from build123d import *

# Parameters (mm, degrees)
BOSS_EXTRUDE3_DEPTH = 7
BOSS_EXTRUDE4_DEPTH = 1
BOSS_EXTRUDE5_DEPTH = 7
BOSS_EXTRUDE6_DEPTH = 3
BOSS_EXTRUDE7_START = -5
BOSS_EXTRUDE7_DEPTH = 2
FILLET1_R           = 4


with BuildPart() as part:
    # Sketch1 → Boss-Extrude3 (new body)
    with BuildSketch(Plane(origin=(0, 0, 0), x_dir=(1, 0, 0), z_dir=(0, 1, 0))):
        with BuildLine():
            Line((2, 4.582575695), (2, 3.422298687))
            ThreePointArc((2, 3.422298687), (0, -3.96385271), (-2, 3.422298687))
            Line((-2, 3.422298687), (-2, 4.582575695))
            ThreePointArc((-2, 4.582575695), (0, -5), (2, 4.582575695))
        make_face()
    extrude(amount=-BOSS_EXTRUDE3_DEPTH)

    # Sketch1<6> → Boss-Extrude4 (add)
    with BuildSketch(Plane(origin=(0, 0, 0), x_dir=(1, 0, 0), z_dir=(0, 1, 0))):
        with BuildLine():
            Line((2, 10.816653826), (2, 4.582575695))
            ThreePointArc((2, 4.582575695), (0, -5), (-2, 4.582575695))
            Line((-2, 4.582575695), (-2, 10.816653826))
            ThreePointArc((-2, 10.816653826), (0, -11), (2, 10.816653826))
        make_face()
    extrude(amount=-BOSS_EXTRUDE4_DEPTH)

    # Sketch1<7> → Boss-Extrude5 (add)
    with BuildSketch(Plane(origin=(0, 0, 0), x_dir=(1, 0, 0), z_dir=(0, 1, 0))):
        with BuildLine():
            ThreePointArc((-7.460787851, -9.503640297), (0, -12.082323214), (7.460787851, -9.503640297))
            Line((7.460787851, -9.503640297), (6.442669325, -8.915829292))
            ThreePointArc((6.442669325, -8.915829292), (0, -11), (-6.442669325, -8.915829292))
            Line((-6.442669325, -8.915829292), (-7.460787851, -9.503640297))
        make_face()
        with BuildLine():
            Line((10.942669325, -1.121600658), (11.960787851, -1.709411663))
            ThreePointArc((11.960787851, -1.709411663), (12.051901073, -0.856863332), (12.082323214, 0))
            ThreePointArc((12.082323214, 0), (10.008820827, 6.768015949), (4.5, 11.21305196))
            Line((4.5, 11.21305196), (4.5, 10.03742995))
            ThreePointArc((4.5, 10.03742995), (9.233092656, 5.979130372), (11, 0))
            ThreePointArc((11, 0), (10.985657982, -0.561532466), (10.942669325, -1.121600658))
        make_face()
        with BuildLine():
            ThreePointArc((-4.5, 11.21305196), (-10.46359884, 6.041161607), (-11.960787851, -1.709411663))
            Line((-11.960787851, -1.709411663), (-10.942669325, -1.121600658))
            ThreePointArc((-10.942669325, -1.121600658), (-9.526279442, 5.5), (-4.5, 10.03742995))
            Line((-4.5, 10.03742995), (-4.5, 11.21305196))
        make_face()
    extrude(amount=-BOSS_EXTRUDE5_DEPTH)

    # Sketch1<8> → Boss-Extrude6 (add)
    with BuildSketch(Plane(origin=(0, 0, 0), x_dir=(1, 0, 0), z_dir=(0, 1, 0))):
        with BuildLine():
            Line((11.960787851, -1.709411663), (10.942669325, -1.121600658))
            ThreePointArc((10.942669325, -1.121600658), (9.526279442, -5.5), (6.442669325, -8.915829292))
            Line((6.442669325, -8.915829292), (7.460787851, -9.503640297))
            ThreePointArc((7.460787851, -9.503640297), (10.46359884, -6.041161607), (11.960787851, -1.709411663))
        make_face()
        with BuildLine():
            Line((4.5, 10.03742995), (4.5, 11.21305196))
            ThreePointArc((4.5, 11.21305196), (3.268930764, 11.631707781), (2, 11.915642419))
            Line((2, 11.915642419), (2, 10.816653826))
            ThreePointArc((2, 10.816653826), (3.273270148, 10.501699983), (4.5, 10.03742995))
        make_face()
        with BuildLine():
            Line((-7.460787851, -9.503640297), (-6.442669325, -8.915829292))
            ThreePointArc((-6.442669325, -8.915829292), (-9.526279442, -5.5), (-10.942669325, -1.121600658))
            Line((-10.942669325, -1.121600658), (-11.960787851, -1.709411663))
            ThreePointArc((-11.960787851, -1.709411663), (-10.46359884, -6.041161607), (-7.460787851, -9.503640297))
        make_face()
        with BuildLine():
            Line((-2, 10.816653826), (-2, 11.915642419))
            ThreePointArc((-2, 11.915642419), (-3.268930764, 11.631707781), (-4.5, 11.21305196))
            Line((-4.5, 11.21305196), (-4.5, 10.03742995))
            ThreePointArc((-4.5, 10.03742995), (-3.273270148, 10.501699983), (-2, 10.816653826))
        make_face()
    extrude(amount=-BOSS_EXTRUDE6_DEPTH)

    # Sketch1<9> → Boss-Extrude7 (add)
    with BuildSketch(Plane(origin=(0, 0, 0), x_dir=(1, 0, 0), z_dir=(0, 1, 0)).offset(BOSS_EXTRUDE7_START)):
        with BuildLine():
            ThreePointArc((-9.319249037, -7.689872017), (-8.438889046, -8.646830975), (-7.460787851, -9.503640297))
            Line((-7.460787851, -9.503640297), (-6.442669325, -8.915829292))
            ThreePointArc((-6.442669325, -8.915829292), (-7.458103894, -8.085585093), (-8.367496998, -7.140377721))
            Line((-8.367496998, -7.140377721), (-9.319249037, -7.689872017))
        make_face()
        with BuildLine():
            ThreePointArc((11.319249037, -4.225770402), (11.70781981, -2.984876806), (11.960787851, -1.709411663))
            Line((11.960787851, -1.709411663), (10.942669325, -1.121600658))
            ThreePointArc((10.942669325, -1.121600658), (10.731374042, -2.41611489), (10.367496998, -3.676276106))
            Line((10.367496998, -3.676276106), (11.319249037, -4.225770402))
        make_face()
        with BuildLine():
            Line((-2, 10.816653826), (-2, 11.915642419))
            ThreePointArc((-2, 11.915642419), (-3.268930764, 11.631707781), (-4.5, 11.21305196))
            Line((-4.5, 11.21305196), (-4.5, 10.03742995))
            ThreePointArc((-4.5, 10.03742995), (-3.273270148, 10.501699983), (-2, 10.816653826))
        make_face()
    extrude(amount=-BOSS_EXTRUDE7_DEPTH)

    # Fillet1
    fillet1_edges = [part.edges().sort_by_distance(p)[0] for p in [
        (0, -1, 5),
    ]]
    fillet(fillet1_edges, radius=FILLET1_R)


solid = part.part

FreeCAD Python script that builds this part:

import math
import FreeCAD as App
import Part
import Sketcher
from FreeCAD import Vector
Q = App.Units.Quantity


def edges_at(feature, points):
    """Names of the edges that pass closest to the given points."""
    edges = feature.Shape.Edges
    near = lambda p: min(range(len(edges)), key=lambda i: edges[i].distToShape(Part.Vertex(*p))[0])
    return sorted({f"Edge{near(p) + 1}" for p in points})

doc = App.newDocument("Part")
body = doc.addObject("PartDesign::Body", "Body")

# Sketch on XZ plane
sketch1 = doc.addObject("Sketcher::SketchObject", "Sketch")
body.addObject(sketch1)
sketch1.AttachmentSupport = (doc.XZ_Plane, [""])
sketch1.MapMode = "FlatFace"
sketch1.addGeometry(Part.LineSegment(Vector(2, -4.6, 0), Vector(2, -3.4, 0)), False)
sketch1.addGeometry(Part.ArcOfCircle(Part.Circle(Vector(0, 0, 0), Vector(0, 0, 1), 4), math.radians(-60), math.radians(240)), False)
sketch1.addGeometry(Part.LineSegment(Vector(-2, -3.4, 0), Vector(-2, -4.6, 0)), False)
sketch1.addGeometry(Part.ArcOfCircle(Part.Circle(Vector(0, 0, 0), Vector(0, 0, 1), 5), math.radians(-66), math.radians(246)), False)
sketch1.addConstraint(Sketcher.Constraint("Coincident", 0, 2, 1, 1))
sketch1.addConstraint(Sketcher.Constraint("Coincident", 1, 2, 2, 1))
sketch1.addConstraint(Sketcher.Constraint("Coincident", 2, 2, 3, 2))
sketch1.addConstraint(Sketcher.Constraint("Coincident", 3, 1, 0, 1))
sketch1.addConstraint(Sketcher.Constraint("Vertical", 0))
sketch1.addConstraint(Sketcher.Constraint("Vertical", 2))
sketch1.addConstraint(Sketcher.Constraint("Coincident", 1, 3, -1, 1))
sketch1.addConstraint(Sketcher.Constraint("Coincident", 3, 3, -1, 1))
sketch1.addConstraint(Sketcher.Constraint("Horizontal", 0, 2, 1, 2))
sketch1.addConstraint(Sketcher.Constraint("Radius", 3, 5.0))
sketch1.addConstraint(Sketcher.Constraint("DistanceX", -1, 1, 0, 2, 2.0))
sketch1.addConstraint(Sketcher.Constraint("Radius", 1, 3.963853))
pad1 = doc.addObject("PartDesign::Pad", "Pad")
body.addObject(pad1)
pad1.Profile = sketch1
pad1.Length = 7

# Sketch on XZ plane
sketch2 = doc.addObject("Sketcher::SketchObject", "Sketch001")
body.addObject(sketch2)
sketch2.AttachmentSupport = (doc.XZ_Plane, [""])
sketch2.MapMode = "FlatFace"
sketch2.addGeometry(Part.LineSegment(Vector(2, -10.8, 0), Vector(2, -4.6, 0)), False)
sketch2.addGeometry(Part.ArcOfCircle(Part.Circle(Vector(0, 0, 0), Vector(0, 0, 1), 5), math.radians(-66), math.radians(246)), False)
sketch2.addGeometry(Part.LineSegment(Vector(-2, -4.6, 0), Vector(-2, -10.8, 0)), False)
sketch2.addGeometry(Part.ArcOfCircle(Part.Circle(Vector(0, 0, 0), Vector(0, 0, 1), 11), math.radians(-80), math.radians(260)), False)
sketch2.addConstraint(Sketcher.Constraint("Coincident", 0, 2, 1, 1))
sketch2.addConstraint(Sketcher.Constraint("Coincident", 1, 2, 2, 1))
sketch2.addConstraint(Sketcher.Constraint("Coincident", 2, 2, 3, 2))
sketch2.addConstraint(Sketcher.Constraint("Coincident", 3, 1, 0, 1))
sketch2.addConstraint(Sketcher.Constraint("Vertical", 0))
sketch2.addConstraint(Sketcher.Constraint("Vertical", 2))
sketch2.addConstraint(Sketcher.Constraint("Coincident", 1, 3, -1, 1))
sketch2.addConstraint(Sketcher.Constraint("Coincident", 3, 3, -1, 1))
sketch2.addConstraint(Sketcher.Constraint("Horizontal", 0, 2, 1, 2))
sketch2.addConstraint(Sketcher.Constraint("Radius", 1, 5.0))
sketch2.addConstraint(Sketcher.Constraint("Radius", 3, 11.0))
sketch2.addConstraint(Sketcher.Constraint("DistanceX", -1, 1, 0, 2, 2.0))
pad2 = doc.addObject("PartDesign::Pad", "Pad001")
body.addObject(pad2)
pad2.Profile = sketch2
pad2.Length = 1

# Sketch on XZ plane
sketch3 = doc.addObject("Sketcher::SketchObject", "Sketch002")
body.addObject(sketch3)
sketch3.AttachmentSupport = (doc.XZ_Plane, [""])
sketch3.MapMode = "FlatFace"
sketch3.addGeometry(Part.ArcOfCircle(Part.Circle(Vector(0, 0, 0), Vector(0, 0, 1), 12.1), math.radians(52), math.radians(128)), False)
sketch3.addGeometry(Part.LineSegment(Vector(7.5, 9.5, 0), Vector(6.4, 8.9, 0)), False)
sketch3.addGeometry(Part.ArcOfCircle(Part.Circle(Vector(0, 0, 0), Vector(0, 0, 1), 11), math.radians(54), math.radians(126)), False)
sketch3.addGeometry(Part.LineSegment(Vector(-6.4, 8.9, 0), Vector(-7.5, 9.5, 0)), False)
sketch3.addGeometry(Part.LineSegment(Vector(10.9, 1.1, 0), Vector(12, 1.7, 0)), False)
sketch3.addGeometry(Part.ArcOfCircle(Part.Circle(Vector(0, 0, 0), Vector(0, 0, 1), 12.1), math.radians(0), math.radians(8.13)), False)
sketch3.addGeometry(Part.ArcOfCircle(Part.Circle(Vector(0, 0, 0), Vector(0, 0, 1), 12.1), math.radians(-68), math.radians(0)), False)
sketch3.addGeometry(Part.LineSegment(Vector(4.5, -11.2, 0), Vector(4.5, -10, 0)), False)
sketch3.addGeometry(Part.ArcOfCircle(Part.Circle(Vector(0, 0, 0), Vector(0, 0, 1), 11), math.radians(-66), math.radians(0)), False)
sketch3.addGeometry(Part.ArcOfCircle(Part.Circle(Vector(0, 0, 0), Vector(0, 0, 1), 11), math.radians(0), math.radians(5.85)), False)
sketch3.addGeometry(Part.ArcOfCircle(Part.Circle(Vector(0, 0, 0), Vector(0, 0, 1), 12.1), math.radians(172), math.radians(248)), False)
sketch3.addGeometry(Part.LineSegment(Vector(-12, 1.7, 0), Vector(-10.9, 1.1, 0)), False)
sketch3.addGeometry(Part.ArcOfCircle(Part.Circle(Vector(0, 0, 0), Vector(0, 0, 1), 11), math.radians(174), math.radians(246)), False)
sketch3.addGeometry(Part.LineSegment(Vector(-4.5, -10, 0), Vector(-4.5, -11.2, 0)), False)
sketch3.addConstraint(Sketcher.Constraint("Coincident", 0, 1, 1, 1))
sketch3.addConstraint(Sketcher.Constraint("Coincident", 1, 2, 2, 1))
sketch3.addConstraint(Sketcher.Constraint("Coincident", 2, 2, 3, 1))
sketch3.addConstraint(Sketcher.Constraint("Coincident", 3, 2, 0, 2))
sketch3.addConstraint(Sketcher.Constraint("Coincident", 4, 2, 5, 2))
sketch3.addConstraint(Sketcher.Constraint("Tangent", 5, 1, 6, 2))
sketch3.addConstraint(Sketcher.Constraint("Coincident", 6, 1, 7, 1))
sketch3.addConstraint(Sketcher.Constraint("Coincident", 7, 2, 8, 1))
sketch3.addConstraint(Sketcher.Constraint("Tangent", 8, 2, 9, 1))
sketch3.addConstraint(Sketcher.Constraint("Coincident", 9, 2, 4, 1))
sketch3.addConstraint(Sketcher.Constraint("Coincident", 10, 1, 11, 1))
sketch3.addConstraint(Sketcher.Constraint("Coincident", 11, 2, 12, 1))
sketch3.addConstraint(Sketcher.Constraint("Coincident", 12, 2, 13, 1))
sketch3.addConstraint(Sketcher.Constraint("Coincident", 13, 2, 10, 2))
sketch3.addConstraint(Sketcher.Constraint("Vertical", 7))
sketch3.addConstraint(Sketcher.Constraint("Vertical", 13))
sketch3.addConstraint(Sketcher.Constraint("Coincident", 0, 3, -1, 1))
sketch3.addConstraint(Sketcher.Constraint("Coincident", 2, 3, -1, 1))
sketch3.addConstraint(Sketcher.Constraint("Coincident", 5, 3, -1, 1))
sketch3.addConstraint(Sketcher.Constraint("Coincident", 8, 3, -1, 1))
sketch3.addConstraint(Sketcher.Constraint("Coincident", 10, 3, -1, 1))
sketch3.addConstraint(Sketcher.Constraint("Coincident", 12, 3, -1, 1))
sketch3.addConstraint(Sketcher.Constraint("Equal", 0, 5))
sketch3.addConstraint(Sketcher.Constraint("Equal", 5, 6))
sketch3.addConstraint(Sketcher.Constraint("Equal", 2, 8))
sketch3.addConstraint(Sketcher.Constraint("Equal", 8, 9))
sketch3.addConstraint(Sketcher.Constraint("Equal", 6, 10))
sketch3.addConstraint(Sketcher.Constraint("Equal", 9, 12))
sketch3.addConstraint(Sketcher.Constraint("PointOnObject", 5, 1, -1))
sketch3.addConstraint(Sketcher.Constraint("PointOnObject", 8, 2, -1))
sketch3.addConstraint(Sketcher.Constraint("Parallel", 1, 4))
sketch3.addConstraint(Sketcher.Constraint("Parallel", 3, 11))
sketch3.addConstraint(Sketcher.Constraint("Horizontal", 1, 2, 2, 2))
sketch3.addConstraint(Sketcher.Constraint("Horizontal", 0, 1, 3, 2))
sketch3.addConstraint(Sketcher.Constraint("Horizontal", 4, 2, 10, 1))
sketch3.addConstraint(Sketcher.Constraint("Horizontal", 7, 2, 12, 2))
sketch3.addConstraint(Sketcher.Constraint("Equal", 3, 4))
sketch3.addConstraint(Sketcher.Constraint("Radius", 2, 11.0))
sketch3.addConstraint(Sketcher.Constraint("Angle", 1, Q("-150 deg")))
sketch3.addConstraint(Sketcher.Constraint("DistanceX", 12, 2, 7, 2, 9.0))
sketch3.addConstraint(Sketcher.Constraint("DistanceX", 0, 1, 4, 2, 4.5))
sketch3.addConstraint(Sketcher.Constraint("Radius", 0, 12.082323))
pad3 = doc.addObject("PartDesign::Pad", "Pad002")
body.addObject(pad3)
pad3.Profile = sketch3
pad3.Length = 7

# Sketch on XZ plane
sketch4 = doc.addObject("Sketcher::SketchObject", "Sketch003")
body.addObject(sketch4)
sketch4.AttachmentSupport = (doc.XZ_Plane, [""])
sketch4.MapMode = "FlatFace"
sketch4.addGeometry(Part.LineSegment(Vector(12, 1.7, 0), Vector(10.9, 1.1, 0)), False)
sketch4.addGeometry(Part.ArcOfCircle(Part.Circle(Vector(0, 0, 0), Vector(0, 0, 1), 11), math.radians(6), math.radians(54)), False)
sketch4.addGeometry(Part.LineSegment(Vector(6.4, 8.9, 0), Vector(7.5, 9.5, 0)), False)
sketch4.addGeometry(Part.ArcOfCircle(Part.Circle(Vector(0, 0, 0), Vector(0, 0, 1), 12.1), math.radians(8), math.radians(52)), False)
sketch4.addGeometry(Part.LineSegment(Vector(4.5, -10, 0), Vector(4.5, -11.2, 0)), False)
sketch4.addGeometry(Part.ArcOfCircle(Part.Circle(Vector(0, 0, 0), Vector(0, 0, 1), 12.1), math.radians(-80.47), math.radians(-68.13)), False)
sketch4.addGeometry(Part.LineSegment(Vector(2, -11.9, 0), Vector(2, -10.8, 0)), False)
sketch4.addGeometry(Part.ArcOfCircle(Part.Circle(Vector(0, 0, 0), Vector(0, 0, 1), 11), math.radians(-79.52), math.radians(-65.85)), False)
sketch4.addGeometry(Part.LineSegment(Vector(-7.5, 9.5, 0), Vector(-6.4, 8.9, 0)), False)
sketch4.addGeometry(Part.ArcOfCircle(Part.Circle(Vector(0, 0, 0), Vector(0, 0, 1), 11), math.radians(126), math.radians(174)), False)
sketch4.addGeometry(Part.LineSegment(Vector(-10.9, 1.1, 0), Vector(-12, 1.7, 0)), False)
sketch4.addGeometry(Part.ArcOfCircle(Part.Circle(Vector(0, 0, 0), Vector(0, 0, 1), 12.1), math.radians(128), math.radians(172)), False)
sketch4.addGeometry(Part.LineSegment(Vector(-2, -10.8, 0), Vector(-2, -11.9, 0)), False)
sketch4.addGeometry(Part.ArcOfCircle(Part.Circle(Vector(0, 0, 0), Vector(0, 0, 1), 12.1), math.radians(-111.87), math.radians(-99.53)), False)
sketch4.addGeometry(Part.LineSegment(Vector(-4.5, -11.2, 0), Vector(-4.5, -10, 0)), False)
sketch4.addGeometry(Part.ArcOfCircle(Part.Circle(Vector(0, 0, 0), Vector(0, 0, 1), 11), math.radians(-114.15), math.radians(-100.48)), False)
sketch4.addConstraint(Sketcher.Constraint("Coincident", 0, 2, 1, 1))
sketch4.addConstraint(Sketcher.Constraint("Coincident", 1, 2, 2, 1))
sketch4.addConstraint(Sketcher.Constraint("Coincident", 2, 2, 3, 2))
sketch4.addConstraint(Sketcher.Constraint("Coincident", 3, 1, 0, 1))
sketch4.addConstraint(Sketcher.Constraint("Coincident", 4, 2, 5, 2))
sketch4.addConstraint(Sketcher.Constraint("Coincident", 5, 1, 6, 1))
sketch4.addConstraint(Sketcher.Constraint("Coincident", 6, 2, 7, 1))
sketch4.addConstraint(Sketcher.Constraint("Coincident", 7, 2, 4, 1))
sketch4.addConstraint(Sketcher.Constraint("Coincident", 8, 2, 9, 1))
sketch4.addConstraint(Sketcher.Constraint("Coincident", 9, 2, 10, 1))
sketch4.addConstraint(Sketcher.Constraint("Coincident", 10, 2, 11, 2))
sketch4.addConstraint(Sketcher.Constraint("Coincident", 11, 1, 8, 1))
sketch4.addConstraint(Sketcher.Constraint("Coincident", 12, 2, 13, 2))
sketch4.addConstraint(Sketcher.Constraint("Coincident", 13, 1, 14, 1))
sketch4.addConstraint(Sketcher.Constraint("Coincident", 14, 2, 15, 1))
sketch4.addConstraint(Sketcher.Constraint("Coincident", 15, 2, 12, 1))
sketch4.addConstraint(Sketcher.Constraint("Vertical", 4))
sketch4.addConstraint(Sketcher.Constraint("Vertical", 6))
sketch4.addConstraint(Sketcher.Constraint("Vertical", 12))
sketch4.addConstraint(Sketcher.Constraint("Vertical", 14))
sketch4.addConstraint(Sketcher.Constraint("Coincident", 1, 3, -1, 1))
sketch4.addConstraint(Sketcher.Constraint("Coincident", 3, 3, -1, 1))
sketch4.addConstraint(Sketcher.Constraint("Coincident", 5, 3, -1, 1))
sketch4.addConstraint(Sketcher.Constraint("Coincident", 7, 3, -1, 1))
sketch4.addConstraint(Sketcher.Constraint("Coincident", 9, 3, -1, 1))
sketch4.addConstraint(Sketcher.Constraint("Coincident", 11, 3, -1, 1))
sketch4.addConstraint(Sketcher.Constraint("Coincident", 13, 3, -1, 1))
sketch4.addConstraint(Sketcher.Constraint("Coincident", 15, 3, -1, 1))
sketch4.addConstraint(Sketcher.Constraint("Equal", 3, 5))
sketch4.addConstraint(Sketcher.Constraint("Equal", 1, 7))
sketch4.addConstraint(Sketcher.Constraint("Equal", 7, 9))
sketch4.addConstraint(Sketcher.Constraint("Equal", 5, 11))
sketch4.addConstraint(Sketcher.Constraint("Equal", 11, 13))
sketch4.addConstraint(Sketcher.Constraint("Equal", 9, 15))
sketch4.addConstraint(Sketcher.Constraint("Parallel", 0, 2))
sketch4.addConstraint(Sketcher.Constraint("Parallel", 8, 10))
sketch4.addConstraint(Sketcher.Constraint("Horizontal", 1, 2, 8, 2))
sketch4.addConstraint(Sketcher.Constraint("Horizontal", 0, 2, 9, 2))
sketch4.addConstraint(Sketcher.Constraint("Horizontal", 3, 1, 10, 2))
sketch4.addConstraint(Sketcher.Constraint("Horizontal", 5, 1, 12, 2))
sketch4.addConstraint(Sketcher.Constraint("Horizontal", 4, 2, 13, 1))
sketch4.addConstraint(Sketcher.Constraint("Equal", 0, 2))
sketch4.addConstraint(Sketcher.Constraint("Radius", 1, 11.0))
sketch4.addConstraint(Sketcher.Constraint("Angle", 0, Q("-150 deg")))
sketch4.addConstraint(Sketcher.Constraint("DistanceX", -1, 1, 5, 1, 2.0))
sketch4.addConstraint(Sketcher.Constraint("DistanceX", 13, 1, 4, 2, 9.0))
sketch4.addConstraint(Sketcher.Constraint("DistanceX", 1, 2, 0, 2, 4.5))
sketch4.addConstraint(Sketcher.Constraint("Radius", 3, 12.082323))
pad4 = doc.addObject("PartDesign::Pad", "Pad003")
body.addObject(pad4)
pad4.Profile = sketch4
pad4.Length = 3

# Sketch on XZ plane
sketch5 = doc.addObject("Sketcher::SketchObject", "Sketch004")
body.addObject(sketch5)
sketch5.AttachmentSupport = (doc.XZ_Plane, [""])
sketch5.MapMode = "FlatFace"
sketch5.AttachmentOffset = App.Placement(Vector(0, 0, 5), App.Rotation())
sketch5.addGeometry(Part.ArcOfCircle(Part.Circle(Vector(0, 0, 0), Vector(0, 0, 1), 12.082323), math.radians(128.133518), math.radians(140.471913)), False)
sketch5.addGeometry(Part.LineSegment(Vector(-7.460788, 9.50364, 0), Vector(-6.442669, 8.915829, 0)), False)
sketch5.addGeometry(Part.ArcOfCircle(Part.Circle(Vector(0, 0, 0), Vector(0, 0, 1), 11), math.radians(125.85226), math.radians(139.524318)), False)
sketch5.addGeometry(Part.LineSegment(Vector(-8.367497, 7.140378, 0), Vector(-9.319249, 7.689872, 0)), False)
sketch5.addGeometry(Part.ArcOfCircle(Part.Circle(Vector(0, 0, 0), Vector(0, 0, 1), 12.082323), math.radians(8.133518), math.radians(20.471913)), False)
sketch5.addGeometry(Part.LineSegment(Vector(11.960788, 1.709412, 0), Vector(10.942669, 1.121601, 0)), False)
sketch5.addGeometry(Part.ArcOfCircle(Part.Circle(Vector(0, 0, 0), Vector(0, 0, 1), 11), math.radians(5.85226), math.radians(19.524318)), False)
sketch5.addGeometry(Part.LineSegment(Vector(10.367497, 3.676276, 0), Vector(11.319249, 4.22577, 0)), False)
sketch5.addGeometry(Part.LineSegment(Vector(-2, -10.816654, 0), Vector(-2, -11.915642, 0)), False)
sketch5.addGeometry(Part.ArcOfCircle(Part.Circle(Vector(0, 0, 0), Vector(0, 0, 1), 12.082323), math.radians(-111.866482), math.radians(-99.528087)), False)
sketch5.addGeometry(Part.LineSegment(Vector(-4.5, -11.213052, 0), Vector(-4.5, -10.03743, 0)), False)
sketch5.addGeometry(Part.ArcOfCircle(Part.Circle(Vector(0, 0, 0), Vector(0, 0, 1), 11), math.radians(-114.14774), math.radians(-100.475682)), False)
sketch5.addConstraint(Sketcher.Constraint("Coincident", 0, 1, 1, 1))
sketch5.addConstraint(Sketcher.Constraint("Coincident", 1, 2, 2, 1))
sketch5.addConstraint(Sketcher.Constraint("Coincident", 2, 2, 3, 1))
sketch5.addConstraint(Sketcher.Constraint("Coincident", 3, 2, 0, 2))
sketch5.addConstraint(Sketcher.Constraint("Coincident", 4, 1, 5, 1))
sketch5.addConstraint(Sketcher.Constraint("Coincident", 5, 2, 6, 1))
sketch5.addConstraint(Sketcher.Constraint("Coincident", 6, 2, 7, 1))
sketch5.addConstraint(Sketcher.Constraint("Coincident", 7, 2, 4, 2))
sketch5.addConstraint(Sketcher.Constraint("Coincident", 8, 2, 9, 2))
sketch5.addConstraint(Sketcher.Constraint("Coincident", 9, 1, 10, 1))
sketch5.addConstraint(Sketcher.Constraint("Coincident", 10, 2, 11, 1))
sketch5.addConstraint(Sketcher.Constraint("Coincident", 11, 2, 8, 1))
sketch5.addConstraint(Sketcher.Constraint("Vertical", 8))
sketch5.addConstraint(Sketcher.Constraint("Vertical", 10))
sketch5.addConstraint(Sketcher.Constraint("Coincident", 0, 3, -1, 1))
sketch5.addConstraint(Sketcher.Constraint("Coincident", 2, 3, -1, 1))
sketch5.addConstraint(Sketcher.Constraint("Coincident", 4, 3, -1, 1))
sketch5.addConstraint(Sketcher.Constraint("Coincident", 6, 3, -1, 1))
sketch5.addConstraint(Sketcher.Constraint("Coincident", 9, 3, -1, 1))
sketch5.addConstraint(Sketcher.Constraint("Coincident", 11, 3, -1, 1))
sketch5.addConstraint(Sketcher.Constraint("Radius", 2, 11.0))
sketch5.addConstraint(Sketcher.Constraint("Radius", 6, 11.0))
sketch5.addConstraint(Sketcher.Constraint("Radius", 11, 11.0))
sketch5.addConstraint(Sketcher.Constraint("DistanceX", 8, 2, -1, 1, 2.0))
sketch5.addConstraint(Sketcher.Constraint("DistanceX", 9, 1, -1, 1, 4.5))
sketch5.addConstraint(Sketcher.Constraint("Radius", 0, 12.082323))
sketch5.addConstraint(Sketcher.Constraint("Radius", 4, 12.082323))
sketch5.addConstraint(Sketcher.Constraint("Radius", 9, 12.082323))
sketch5.addConstraint(Sketcher.Constraint("DistanceY", -1, 1, 5, 2, 1.121601))
sketch5.addConstraint(Sketcher.Constraint("Distance", 3, 1.098989))
sketch5.addConstraint(Sketcher.Constraint("Distance", 7, 1.098989))
sketch5.addConstraint(Sketcher.Constraint("DistanceY", -1, 1, 0, 1, 9.50364))
sketch5.addConstraint(Sketcher.Constraint("DistanceX", 1, 2, -1, 1, 6.442669))
sketch5.addConstraint(Sketcher.Constraint("DistanceX", 3, 2, -1, 1, 9.319249))
sketch5.addConstraint(Sketcher.Constraint("DistanceY", -1, 1, 4, 1, 1.709412))
sketch5.addConstraint(Sketcher.Constraint("DistanceX", -1, 1, 7, 2, 11.319249))
pad5 = doc.addObject("PartDesign::Pad", "Pad004")
body.addObject(pad5)
pad5.Profile = sketch5
pad5.Length = 2
doc.recompute()

fillet = doc.addObject("PartDesign::Fillet", "Fillet")
body.addObject(fillet)
fillet.Base = (pad5, edges_at(pad5, [(0, -1, 5)]))
fillet.Radius = 4

doc.recompute()
